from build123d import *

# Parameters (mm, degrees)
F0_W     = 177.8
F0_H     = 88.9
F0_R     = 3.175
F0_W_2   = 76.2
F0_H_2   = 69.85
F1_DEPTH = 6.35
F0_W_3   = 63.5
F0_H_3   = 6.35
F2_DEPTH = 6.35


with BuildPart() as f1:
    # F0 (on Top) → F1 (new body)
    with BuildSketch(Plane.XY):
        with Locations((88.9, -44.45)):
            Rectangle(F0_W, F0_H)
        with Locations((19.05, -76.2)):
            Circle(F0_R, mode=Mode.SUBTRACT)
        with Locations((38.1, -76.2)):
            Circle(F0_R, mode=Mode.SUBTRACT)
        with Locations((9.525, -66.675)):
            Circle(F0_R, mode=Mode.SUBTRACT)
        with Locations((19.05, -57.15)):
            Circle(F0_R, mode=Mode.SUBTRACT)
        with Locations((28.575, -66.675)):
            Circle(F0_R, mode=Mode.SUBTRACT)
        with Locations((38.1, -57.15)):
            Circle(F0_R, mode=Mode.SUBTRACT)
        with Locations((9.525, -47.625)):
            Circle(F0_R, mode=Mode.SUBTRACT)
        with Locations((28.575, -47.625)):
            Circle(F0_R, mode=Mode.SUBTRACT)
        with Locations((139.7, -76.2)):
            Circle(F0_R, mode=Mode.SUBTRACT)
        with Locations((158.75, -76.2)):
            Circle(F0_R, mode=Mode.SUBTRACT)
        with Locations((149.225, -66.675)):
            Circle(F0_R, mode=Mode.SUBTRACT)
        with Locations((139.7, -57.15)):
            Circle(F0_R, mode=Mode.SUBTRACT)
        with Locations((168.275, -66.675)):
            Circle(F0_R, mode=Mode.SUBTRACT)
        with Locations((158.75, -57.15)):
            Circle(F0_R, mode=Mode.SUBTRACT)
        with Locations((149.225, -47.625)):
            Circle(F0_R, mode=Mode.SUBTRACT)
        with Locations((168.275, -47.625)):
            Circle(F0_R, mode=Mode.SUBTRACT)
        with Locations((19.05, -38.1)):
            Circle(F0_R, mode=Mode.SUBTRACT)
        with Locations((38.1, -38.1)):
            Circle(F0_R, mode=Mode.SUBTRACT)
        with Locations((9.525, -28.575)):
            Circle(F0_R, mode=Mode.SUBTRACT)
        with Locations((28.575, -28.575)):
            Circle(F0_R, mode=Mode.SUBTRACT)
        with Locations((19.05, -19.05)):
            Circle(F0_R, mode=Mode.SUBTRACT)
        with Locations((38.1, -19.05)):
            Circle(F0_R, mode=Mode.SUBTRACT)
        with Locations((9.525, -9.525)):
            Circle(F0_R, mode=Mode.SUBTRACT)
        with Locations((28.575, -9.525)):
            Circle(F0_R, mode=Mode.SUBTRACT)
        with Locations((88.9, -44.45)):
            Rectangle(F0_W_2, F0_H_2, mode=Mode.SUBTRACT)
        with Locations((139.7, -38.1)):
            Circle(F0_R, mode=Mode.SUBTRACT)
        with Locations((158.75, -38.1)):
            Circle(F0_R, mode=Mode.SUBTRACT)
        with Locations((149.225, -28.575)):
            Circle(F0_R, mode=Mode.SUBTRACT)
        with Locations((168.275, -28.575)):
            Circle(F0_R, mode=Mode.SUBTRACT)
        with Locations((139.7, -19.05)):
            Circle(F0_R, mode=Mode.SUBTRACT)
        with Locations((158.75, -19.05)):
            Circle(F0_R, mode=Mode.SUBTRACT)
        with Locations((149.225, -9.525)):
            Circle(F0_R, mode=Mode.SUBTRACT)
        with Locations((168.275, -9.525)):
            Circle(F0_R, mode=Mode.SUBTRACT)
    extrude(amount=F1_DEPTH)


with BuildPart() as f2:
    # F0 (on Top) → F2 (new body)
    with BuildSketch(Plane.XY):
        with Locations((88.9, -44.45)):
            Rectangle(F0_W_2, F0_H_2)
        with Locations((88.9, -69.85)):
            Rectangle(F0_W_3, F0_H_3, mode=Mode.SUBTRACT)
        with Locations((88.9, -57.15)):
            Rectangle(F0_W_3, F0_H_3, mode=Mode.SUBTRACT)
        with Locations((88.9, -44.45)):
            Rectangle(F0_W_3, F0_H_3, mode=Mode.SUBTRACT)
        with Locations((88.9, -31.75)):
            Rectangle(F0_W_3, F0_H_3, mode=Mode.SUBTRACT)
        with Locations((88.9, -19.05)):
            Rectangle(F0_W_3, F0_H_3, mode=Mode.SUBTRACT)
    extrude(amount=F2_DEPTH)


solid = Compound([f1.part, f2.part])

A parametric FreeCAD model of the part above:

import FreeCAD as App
import Part
import Sketcher

V = App.Vector
Q = App.Units.Quantity


def add_polygon(sketch, points):
    """Adds a closed chain of lines whose ends are joined by coincident constraints."""
    first, n = sketch.GeometryCount, len(points)
    for a, b in zip(points, points[1:] + points[:1]):
        sketch.addGeometry(Part.LineSegment(App.Vector(*a, 0), App.Vector(*b, 0)), False)
    for i in range(n):
        sketch.addConstraint(Sketcher.Constraint("Coincident", first + i, 2, first + (i + 1) % n, 1))

doc = App.newDocument("Part")
body = doc.addObject("PartDesign::Body", "Body")

# Sketch on XY plane
sketch1 = body.newObject("Sketcher::SketchObject", "Sketch")
sketch1.AttachmentSupport = (doc.getObject("XY_Plane"), [""])
sketch1.MapMode = "FlatFace"
add_polygon(sketch1, [(0, 0), (0, -88.9), (177.8, -88.9), (177.8, 0)])  # lines 0-3
sketch1.addGeometry(Part.Circle(V(19.05, -76.2, 0), V(0, 0, 1), 3.175), False)  # 4
sketch1.addGeometry(Part.Circle(V(38.1, -76.2, 0), V(0, 0, 1), 3.175), False)  # 5
sketch1.addGeometry(Part.Circle(V(9.525, -66.675, 0), V(0, 0, 1), 3.175), False)  # 6
sketch1.addGeometry(Part.Circle(V(28.575, -66.675, 0), V(0, 0, 1), 3.175), False)  # 7
sketch1.addGeometry(Part.Circle(V(19.05, -57.15, 0), V(0, 0, 1), 3.175), False)  # 8
sketch1.addGeometry(Part.Circle(V(38.1, -57.15, 0), V(0, 0, 1), 3.175), False)  # 9
sketch1.addGeometry(Part.Circle(V(9.525, -47.625, 0), V(0, 0, 1), 3.175), False)  # 10
sketch1.addGeometry(Part.Circle(V(28.575, -47.625, 0), V(0, 0, 1), 3.175), False)  # 11
sketch1.addGeometry(Part.Circle(V(139.7, -76.2, 0), V(0, 0, 1), 3.175), False)  # 12
sketch1.addGeometry(Part.Circle(V(158.75, -76.2, 0), V(0, 0, 1), 3.175), False)  # 13
sketch1.addGeometry(Part.Circle(V(149.225, -66.675, 0), V(0, 0, 1), 3.175), False)  # 14
sketch1.addGeometry(Part.Circle(V(168.275, -66.675, 0), V(0, 0, 1), 3.175), False)  # 15
add_polygon(sketch1, [(127, -79.375), (50.8, -79.375), (50.8, -9.525), (127, -9.525)])  # lines 16-19
sketch1.addGeometry(Part.Circle(V(139.7, -57.15, 0), V(0, 0, 1), 3.175), False)  # 20
sketch1.addGeometry(Part.Circle(V(158.75, -57.15, 0), V(0, 0, 1), 3.175), False)  # 21
sketch1.addGeometry(Part.Circle(V(149.225, -47.625, 0), V(0, 0, 1), 3.175), False)  # 22
sketch1.addGeometry(Part.Circle(V(168.275, -47.625, 0), V(0, 0, 1), 3.175), False)  # 23
sketch1.addGeometry(Part.Circle(V(19.05, -38.1, 0), V(0, 0, 1), 3.175), False)  # 24
sketch1.addGeometry(Part.Circle(V(38.1, -38.1, 0), V(0, 0, 1), 3.175), False)  # 25
sketch1.addGeometry(Part.Circle(V(9.525, -28.575, 0), V(0, 0, 1), 3.175), False)  # 26
sketch1.addGeometry(Part.Circle(V(28.575, -28.575, 0), V(0, 0, 1), 3.175), False)  # 27
sketch1.addGeometry(Part.Circle(V(19.05, -19.05, 0), V(0, 0, 1), 3.175), False)  # 28
sketch1.addGeometry(Part.Circle(V(38.1, -19.05, 0), V(0, 0, 1), 3.175), False)  # 29
sketch1.addGeometry(Part.Circle(V(9.525, -9.525, 0), V(0, 0, 1), 3.175), False)  # 30
sketch1.addGeometry(Part.Circle(V(28.575, -9.525, 0), V(0, 0, 1), 3.175), False)  # 31
sketch1.addGeometry(Part.Circle(V(139.7, -38.1, 0), V(0, 0, 1), 3.175), False)  # 32
sketch1.addGeometry(Part.Circle(V(158.75, -38.1, 0), V(0, 0, 1), 3.175), False)  # 33
sketch1.addGeometry(Part.Circle(V(149.225, -28.575, 0), V(0, 0, 1), 3.175), False)  # 34
sketch1.addGeometry(Part.Circle(V(168.275, -28.575, 0), V(0, 0, 1), 3.175), False)  # 35
sketch1.addGeometry(Part.Circle(V(139.7, -19.05, 0), V(0, 0, 1), 3.175), False)  # 36
sketch1.addGeometry(Part.Circle(V(158.75, -19.05, 0), V(0, 0, 1), 3.175), False)  # 37
sketch1.addGeometry(Part.Circle(V(149.225, -9.525, 0), V(0, 0, 1), 3.175), False)  # 38
sketch1.addGeometry(Part.Circle(V(168.275, -9.525, 0), V(0, 0, 1), 3.175), False)  # 39
sketch1.addConstraint(Sketcher.Constraint("Vertical", 0))
sketch1.addConstraint(Sketcher.Constraint("Horizontal", 1))
sketch1.addConstraint(Sketcher.Constraint("Vertical", 2))
sketch1.addConstraint(Sketcher.Constraint("Horizontal", 3))
sketch1.addConstraint(Sketcher.Constraint("Horizontal", 16))
sketch1.addConstraint(Sketcher.Constraint("Vertical", 17))
sketch1.addConstraint(Sketcher.Constraint("Horizontal", 18))
sketch1.addConstraint(Sketcher.Constraint("Vertical", 19))
sketch1.addConstraint(Sketcher.Constraint("Coincident", 3, 2, -1, 1))
sketch1.addConstraint(Sketcher.Constraint("Equal", 4, 5))
sketch1.addConstraint(Sketcher.Constraint("Equal", 5, 6))
sketch1.addConstraint(Sketcher.Constraint("Equal", 6, 7))
sketch1.addConstraint(Sketcher.Constraint("Equal", 7, 8))
sketch1.addConstraint(Sketcher.Constraint("Equal", 8, 9))
sketch1.addConstraint(Sketcher.Constraint("Equal", 9, 10))
sketch1.addConstraint(Sketcher.Constraint("Equal", 10, 11))
sketch1.addConstraint(Sketcher.Constraint("Equal", 11, 12))
sketch1.addConstraint(Sketcher.Constraint("Equal", 12, 13))
sketch1.addConstraint(Sketcher.Constraint("Equal", 13, 14))
sketch1.addConstraint(Sketcher.Constraint("Equal", 14, 15))
sketch1.addConstraint(Sketcher.Constraint("Equal", 15, 20))
sketch1.addConstraint(Sketcher.Constraint("Equal", 20, 21))
sketch1.addConstraint(Sketcher.Constraint("Equal", 21, 22))
sketch1.addConstraint(Sketcher.Constraint("Equal", 22, 23))
sketch1.addConstraint(Sketcher.Constraint("Equal", 23, 24))
sketch1.addConstraint(Sketcher.Constraint("Equal", 24, 25))
sketch1.addConstraint(Sketcher.Constraint("Equal", 25, 26))
sketch1.addConstraint(Sketcher.Constraint("Equal", 26, 27))
sketch1.addConstraint(Sketcher.Constraint("Equal", 27, 28))
sketch1.addConstraint(Sketcher.Constraint("Equal", 28, 29))
sketch1.addConstraint(Sketcher.Constraint("Equal", 29, 30))
sketch1.addConstraint(Sketcher.Constraint("Equal", 30, 31))
sketch1.addConstraint(Sketcher.Constraint("Equal", 31, 32))
sketch1.addConstraint(Sketcher.Constraint("Equal", 32, 33))
sketch1.addConstraint(Sketcher.Constraint("Equal", 33, 34))
sketch1.addConstraint(Sketcher.Constraint("Equal", 34, 35))
sketch1.addConstraint(Sketcher.Constraint("Equal", 35, 36))
sketch1.addConstraint(Sketcher.Constraint("Equal", 36, 37))
sketch1.addConstraint(Sketcher.Constraint("Equal", 37, 38))
sketch1.addConstraint(Sketcher.Constraint("Equal", 38, 39))
sketch1.addConstraint(Sketcher.Constraint("Horizontal", 4, 3, 5, 3))
sketch1.addConstraint(Sketcher.Constraint("Horizontal", 6, 3, 7, 3))
sketch1.addConstraint(Sketcher.Constraint("Horizontal", 8, 3, 9, 3))
sketch1.addConstraint(Sketcher.Constraint("Horizontal", 10, 3, 11, 3))
sketch1.addConstraint(Sketcher.Constraint("Horizontal", 5, 3, 12, 3))
sketch1.addConstraint(Sketcher.Constraint("Horizontal", 12, 3, 13, 3))
sketch1.addConstraint(Sketcher.Constraint("Horizontal", 7, 3, 14, 3))
sketch1.addConstraint(Sketcher.Constraint("Horizontal", 14, 3, 15, 3))
sketch1.addConstraint(Sketcher.Constraint("Horizontal", 9, 3, 20, 3))
sketch1.addConstraint(Sketcher.Constraint("Horizontal", 20, 3, 21, 3))
sketch1.addConstraint(Sketcher.Constraint("Horizontal", 11, 3, 22, 3))
sketch1.addConstraint(Sketcher.Constraint("Horizontal", 22, 3, 23, 3))
sketch1.addConstraint(Sketcher.Constraint("Horizontal", 24, 3, 25, 3))
sketch1.addConstraint(Sketcher.Constraint("Horizontal", 26, 3, 27, 3))
sketch1.addConstraint(Sketcher.Constraint("Horizontal", 28, 3, 29, 3))
sketch1.addConstraint(Sketcher.Constraint("Horizontal", 30, 3, 31, 3))
sketch1.addConstraint(Sketcher.Constraint("Horizontal", 25, 3, 32, 3))
sketch1.addConstraint(Sketcher.Constraint("Horizontal", 32, 3, 33, 3))
sketch1.addConstraint(Sketcher.Constraint("Horizontal", 27, 3, 34, 3))
sketch1.addConstraint(Sketcher.Constraint("Horizontal", 34, 3, 35, 3))
sketch1.addConstraint(Sketcher.Constraint("Horizontal", 29, 3, 36, 3))
sketch1.addConstraint(Sketcher.Constraint("Horizontal", 36, 3, 37, 3))
sketch1.addConstraint(Sketcher.Constraint("Horizontal", 31, 3, 38, 3))
sketch1.addConstraint(Sketcher.Constraint("Horizontal", 38, 3, 39, 3))
sketch1.addConstraint(Sketcher.Constraint("Horizontal", 39, 3, 17, 2))
sketch1.addConstraint(Sketcher.Constraint("Vertical", 4, 3, 8, 3))
sketch1.addConstraint(Sketcher.Constraint("Vertical", 5, 3, 9, 3))
sketch1.addConstraint(Sketcher.Constraint("Vertical", 6, 3, 10, 3))
sketch1.addConstraint(Sketcher.Constraint("Vertical", 7, 3, 11, 3))
sketch1.addConstraint(Sketcher.Constraint("Vertical", 12, 3, 20, 3))
sketch1.addConstraint(Sketcher.Constraint("Vertical", 13, 3, 21, 3))
sketch1.addConstraint(Sketcher.Constraint("Vertical", 14, 3, 22, 3))
sketch1.addConstraint(Sketcher.Constraint("Vertical", 15, 3, 23, 3))
sketch1.addConstraint(Sketcher.Constraint("Vertical", 8, 3, 24, 3))
sketch1.addConstraint(Sketcher.Constraint("Vertical", 9, 3, 25, 3))
sketch1.addConstraint(Sketcher.Constraint("Vertical", 10, 3, 26, 3))
sketch1.addConstraint(Sketcher.Constraint("Vertical", 11, 3, 27, 3))
sketch1.addConstraint(Sketcher.Constraint("Vertical", 24, 3, 28, 3))
sketch1.addConstraint(Sketcher.Constraint("Vertical", 25, 3, 29, 3))
sketch1.addConstraint(Sketcher.Constraint("Vertical", 26, 3, 30, 3))
sketch1.addConstraint(Sketcher.Constraint("Vertical", 27, 3, 31, 3))
sketch1.addConstraint(Sketcher.Constraint("Vertical", 20, 3, 32, 3))
sketch1.addConstraint(Sketcher.Constraint("Vertical", 21, 3, 33, 3))
sketch1.addConstraint(Sketcher.Constraint("Vertical", 22, 3, 34, 3))
sketch1.addConstraint(Sketcher.Constraint("Vertical", 23, 3, 35, 3))
sketch1.addConstraint(Sketcher.Constraint("Vertical", 32, 3, 36, 3))
sketch1.addConstraint(Sketcher.Constraint("Vertical", 33, 3, 37, 3))
sketch1.addConstraint(Sketcher.Constraint("Vertical", 34, 3, 38, 3))
sketch1.addConstraint(Sketcher.Constraint("Vertical", 35, 3, 39, 3))
sketch1.addConstraint(Sketcher.Constraint("Diameter", 4, Q("0.25 in")))
sketch1.addConstraint(Sketcher.Constraint("DistanceX", 1, 1, 1, 2, Q("7 in")))
sketch1.addConstraint(Sketcher.Constraint("DistanceX", 16, 2, 16, 1, Q("3 in")))
sketch1.addConstraint(Sketcher.Constraint("DistanceY", 0, 2, 0, 1, Q("3.5 in")))
sketch1.addConstraint(Sketcher.Constraint("DistanceY", 4, 3, -1, 1, Q("3 in")))
sketch1.addConstraint(Sketcher.Constraint("DistanceX", -1, 1, 16, 2, Q("2 in")))
sketch1.addConstraint(Sketcher.Constraint("DistanceX", 5, 3, 12, 3, Q("4 in")))
sketch1.addConstraint(Sketcher.Constraint("DistanceY", 17, 1, 17, 2, Q("2.75 in")))
sketch1.addConstraint(Sketcher.Constraint("DistanceX", -1, 1, 5, 3, Q("1.5 in")))
sketch1.addConstraint(Sketcher.Constraint("DistanceY", 24, 3, -1, 1, Q("1.5 in")))
sketch1.addConstraint(Sketcher.Constraint("DistanceY", 16, 2, 7, 3, Q("0.5 in")))
sketch1.addConstraint(Sketcher.Constraint("DistanceX", -1, 1, 4, 3, Q("0.75 in")))
sketch1.addConstraint(Sketcher.Constraint("DistanceY", 8, 3, -1, 1, Q("2.25 in")))
sketch1.addConstraint(Sketcher.Constraint("DistanceX", -1, 1, 13, 3, Q("6.25 in")))
sketch1.addConstraint(Sketcher.Constraint("DistanceY", 28, 3, -1, 1, Q("0.75 in")))
sketch1.addConstraint(Sketcher.Constraint("DistanceX", 6, 3, 7, 3, Q("0.75 in")))
sketch1.addConstraint(Sketcher.Constraint("DistanceY", 6, 3, 10, 3, Q("0.75 in")))
sketch1.addConstraint(Sketcher.Constraint("DistanceX", 7, 3, 14, 3, Q("4.75 in")))
sketch1.addConstraint(Sketcher.Constraint("DistanceX", 14, 3, 15, 3, Q("0.75 in")))
sketch1.addConstraint(Sketcher.Constraint("DistanceY", 10, 3, 26, 3, Q("0.75 in")))
sketch1.addConstraint(Sketcher.Constraint("DistanceX", -1, 1, 6, 3, Q("0.375 in")))
sketch1.addConstraint(Sketcher.Constraint("DistanceY", 6, 3, -1, 1, Q("2.625 in")))
pad1 = body.newObject("PartDesign::Pad", "Pad")
pad1.Profile = sketch1
pad1.Length = Q("0.25 in")
body2 = doc.addObject("PartDesign::Body", "Body001")

# Sketch on XY plane
sketch2 = body2.newObject("Sketcher::SketchObject", "Sketch001")
sketch2.AttachmentSupport = (doc.getObject("XY_Plane001"), [""])
sketch2.MapMode = "FlatFace"
add_polygon(sketch2, [(50.8, -9.525), (50.8, -79.375), (127, -79.375), (127, -9.525)])  # lines 0-3
add_polygon(sketch2, [(120.65, -73.025), (57.15, -73.025), (57.15, -66.675), (120.65, -66.675)])  # lines 4-7
add_polygon(sketch2, [(120.65, -60.325), (57.15, -60.325), (57.15, -53.975), (120.65, -53.975)])  # lines 8-11
add_polygon(sketch2, [(120.65, -47.625), (57.15, -47.625), (57.15, -41.275), (120.65, -41.275)])  # lines 12-15
add_polygon(sketch2, [(120.65, -34.925), (57.15, -34.925), (57.15, -28.575), (120.65, -28.575)])  # lines 16-19
add_polygon(sketch2, [(120.65, -22.225), (57.15, -22.225), (57.15, -15.875), (120.65, -15.875)])  # lines 20-23
sketch2.addConstraint(Sketcher.Constraint("Vertical", 0))
sketch2.addConstraint(Sketcher.Constraint("Horizontal", 1))
sketch2.addConstraint(Sketcher.Constraint("Vertical", 2))
sketch2.addConstraint(Sketcher.Constraint("Horizontal", 3))
sketch2.addConstraint(Sketcher.Constraint("Horizontal", 4))
sketch2.addConstraint(Sketcher.Constraint("Vertical", 5))
sketch2.addConstraint(Sketcher.Constraint("Horizontal", 6))
sketch2.addConstraint(Sketcher.Constraint("Vertical", 7))
sketch2.addConstraint(Sketcher.Constraint("Horizontal", 8))
sketch2.addConstraint(Sketcher.Constraint("Vertical", 9))
sketch2.addConstraint(Sketcher.Constraint("Horizontal", 10))
sketch2.addConstraint(Sketcher.Constraint("Vertical", 11))
sketch2.addConstraint(Sketcher.Constraint("Horizontal", 12))
sketch2.addConstraint(Sketcher.Constraint("Vertical", 13))
sketch2.addConstraint(Sketcher.Constraint("Horizontal", 14))
sketch2.addConstraint(Sketcher.Constraint("Vertical", 15))
sketch2.addConstraint(Sketcher.Constraint("Horizontal", 16))
sketch2.addConstraint(Sketcher.Constraint("Vertical", 17))
sketch2.addConstraint(Sketcher.Constraint("Horizontal", 18))
sketch2.addConstraint(Sketcher.Constraint("Vertical", 19))
sketch2.addConstraint(Sketcher.Constraint("Horizontal", 20))
sketch2.addConstraint(Sketcher.Constraint("Vertical", 21))
sketch2.addConstraint(Sketcher.Constraint("Horizontal", 22))
sketch2.addConstraint(Sketcher.Constraint("Vertical", 23))
sketch2.addConstraint(Sketcher.Constraint("Vertical", 5, 2, 8, 2))
sketch2.addConstraint(Sketcher.Constraint("Vertical", 7, 2, 10, 2))
sketch2.addConstraint(Sketcher.Constraint("Vertical", 9, 2, 12, 2))
sketch2.addConstraint(Sketcher.Constraint("Vertical", 11, 2, 14, 2))
sketch2.addConstraint(Sketcher.Constraint("Vertical", 13, 2, 16, 2))
sketch2.addConstraint(Sketcher.Constraint("Vertical", 15, 2, 18, 2))
sketch2.addConstraint(Sketcher.Constraint("Vertical", 17, 2, 20, 2))
sketch2.addConstraint(Sketcher.Constraint("Vertical", 19, 2, 22, 2))
sketch2.addConstraint(Sketcher.Constraint("Equal", 7, 9))
sketch2.addConstraint(Sketcher.Constraint("Equal", 11, 13))
sketch2.addConstraint(Sketcher.Constraint("Equal", 15, 17))
sketch2.addConstraint(Sketcher.Constraint("Equal", 19, 21))
sketch2.addConstraint(Sketcher.Constraint("DistanceX", 1, 1, 1, 2, Q("3 in")))
sketch2.addConstraint(Sketcher.Constraint("DistanceX", 4, 2, 4, 1, Q("2.5 in")))
sketch2.addConstraint(Sketcher.Constraint("DistanceX", -1, 1, 0, 2, Q("2 in")))
sketch2.addConstraint(Sketcher.Constraint("DistanceY", 8, 2, 3, 2, Q("2 in")))
sketch2.addConstraint(Sketcher.Constraint("DistanceY", 0, 2, 9, 2, Q("1 in")))
sketch2.addConstraint(Sketcher.Constraint("DistanceY", 4, 2, 12, 2, Q("1 in")))
sketch2.addConstraint(Sketcher.Constraint("DistanceY", 8, 2, 16, 2, Q("1 in")))
sketch2.addConstraint(Sketcher.Constraint("DistanceY", 12, 2, 20, 2, Q("1 in")))
sketch2.addConstraint(Sketcher.Constraint("DistanceY", 0, 2, 0, 1, Q("2.75 in")))
sketch2.addConstraint(Sketcher.Constraint("DistanceY", 4, 2, 3, 2, Q("2.5 in")))
sketch2.addConstraint(Sketcher.Constraint("DistanceX", -1, 1, 4, 2, Q("2.25 in")))
sketch2.addConstraint(Sketcher.Constraint("DistanceY", 0, 2, -1, 1, Q("3.125 in")))
pad2 = body2.newObject("PartDesign::Pad", "Pad001")
pad2.Profile = sketch2
pad2.Length = Q("0.25 in")

doc.recompute()
